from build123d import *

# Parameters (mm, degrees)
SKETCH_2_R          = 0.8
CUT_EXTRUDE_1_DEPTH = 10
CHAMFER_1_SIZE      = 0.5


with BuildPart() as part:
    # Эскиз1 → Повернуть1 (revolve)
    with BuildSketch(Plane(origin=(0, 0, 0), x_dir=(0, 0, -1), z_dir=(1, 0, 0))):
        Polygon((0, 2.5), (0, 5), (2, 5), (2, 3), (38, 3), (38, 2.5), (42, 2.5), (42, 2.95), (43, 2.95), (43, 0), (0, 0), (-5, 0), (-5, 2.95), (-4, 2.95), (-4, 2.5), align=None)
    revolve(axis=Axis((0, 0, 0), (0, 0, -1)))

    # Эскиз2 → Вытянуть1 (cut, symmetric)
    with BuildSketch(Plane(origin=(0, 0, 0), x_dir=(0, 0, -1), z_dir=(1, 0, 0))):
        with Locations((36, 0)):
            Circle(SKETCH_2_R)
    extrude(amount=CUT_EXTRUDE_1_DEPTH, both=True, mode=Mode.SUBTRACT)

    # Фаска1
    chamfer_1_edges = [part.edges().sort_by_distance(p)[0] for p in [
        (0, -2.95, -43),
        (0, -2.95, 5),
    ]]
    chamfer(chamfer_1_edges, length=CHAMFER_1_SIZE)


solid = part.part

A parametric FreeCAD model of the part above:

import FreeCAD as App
import Part
import Sketcher
Q = App.Units.Quantity


def edges_at(feature, points):
    """Names of the edges that pass closest to the given points."""
    edges = feature.Shape.Edges
    near = lambda p: min(range(len(edges)), key=lambda i: edges[i].distToShape(Part.Vertex(*p))[0])
    return sorted({f"Edge{near(p) + 1}" for p in points})


def add_polygon(sketch, points):
    """Adds a closed chain of lines whose ends are joined by coincident constraints."""
    first, n = sketch.GeometryCount, len(points)
    for a, b in zip(points, points[1:] + points[:1]):
        sketch.addGeometry(Part.LineSegment(App.Vector(*a, 0), App.Vector(*b, 0)), False)
    for i in range(n):
        sketch.addConstraint(Sketcher.Constraint("Coincident", first + i, 2, first + (i + 1) % n, 1))

doc = App.newDocument("Part")
body = doc.addObject("PartDesign::Body", "Body")

# Sketch on YZ plane
sketch1 = body.newObject("Sketcher::SketchObject", "Sketch")
sketch1.AttachmentSupport = (doc.getObject("YZ_Plane"), [""])
sketch1.MapMode = "FlatFace"
add_polygon(sketch1, [(5, 0), (2.5, 0), (2.5, 4), (2.95, 4), (2.95, 5), (0, 5), (0, -43), (2.95, -43), (2.95, -42), (2.5, -42), (2.5, -38), (3, -38), (3, -2), (5, -2)])  # lines 0-13
sketch1.addConstraint(Sketcher.Constraint("Horizontal", 0))
sketch1.addConstraint(Sketcher.Constraint("Vertical", 1))
sketch1.addConstraint(Sketcher.Constraint("Horizontal", 2))
sketch1.addConstraint(Sketcher.Constraint("Vertical", 3))
sketch1.addConstraint(Sketcher.Constraint("Horizontal", 4))
sketch1.addConstraint(Sketcher.Constraint("Vertical", 5))
sketch1.addConstraint(Sketcher.Constraint("Horizontal", 6))
sketch1.addConstraint(Sketcher.Constraint("Vertical", 7))
sketch1.addConstraint(Sketcher.Constraint("Horizontal", 8))
sketch1.addConstraint(Sketcher.Constraint("Vertical", 9))
sketch1.addConstraint(Sketcher.Constraint("Horizontal", 10))
sketch1.addConstraint(Sketcher.Constraint("Vertical", 11))
sketch1.addConstraint(Sketcher.Constraint("Horizontal", 12))
sketch1.addConstraint(Sketcher.Constraint("Vertical", 13))
sketch1.addConstraint(Sketcher.Constraint("PointOnObject", 0, 2, -1))
sketch1.addConstraint(Sketcher.Constraint("PointOnObject", 4, 2, -2))
sketch1.addConstraint(Sketcher.Constraint("Vertical", 3, 2, 6, 2))
sketch1.addConstraint(Sketcher.Constraint("Vertical", 1, 2, 8, 2))
sketch1.addConstraint(Sketcher.Constraint("Equal", 3, 7))
sketch1.addConstraint(Sketcher.Constraint("Equal", 1, 9))
sketch1.addConstraint(Sketcher.Constraint("Equal", 12, 13))
sketch1.addConstraint(Sketcher.Constraint("DistanceX", 12, 1, 12, 2, Q("2 mm")))
sketch1.addConstraint(Sketcher.Constraint("DistanceY", 1, 1, 1, 2, Q("4 mm")))
sketch1.addConstraint(Sketcher.Constraint("DistanceY", 3, 1, 3, 2, Q("1 mm")))
sketch1.addConstraint(Sketcher.Constraint("DistanceY", 5, 2, 5, 1, Q("48 mm")))
sketch1.addConstraint(Sketcher.Constraint("DistanceX", 0, 2, 0, 1, Q("2.5 mm")))
sketch1.addConstraint(Sketcher.Constraint("DistanceX", -1, 1, 10, 2, Q("3 mm")))
sketch1.addConstraint(Sketcher.Constraint("DistanceX", 2, 1, 2, 2, Q("0.45 mm")))
revolution = body.newObject("PartDesign::Revolution", "Revolution")
revolution.Profile = sketch1
revolution.ReferenceAxis = (sketch1, ["V_Axis"])
revolution.Angle = 360

# Sketch on YZ plane
sketch2 = body.newObject("Sketcher::SketchObject", "Sketch001")
sketch2.AttachmentSupport = (doc.getObject("YZ_Plane"), [""])
sketch2.MapMode = "FlatFace"
sketch2.addGeometry(Part.Circle(App.Vector(0, -36, 0), App.Vector(0, 0, 1), 0.8), False)
sketch2.addConstraint(Sketcher.Constraint("PointOnObject", 0, 3, -2))
sketch2.addConstraint(Sketcher.Constraint("Diameter", 0, Q("1.6 mm")))
sketch2.addConstraint(Sketcher.Constraint("DistanceY", 0, 3, -1, 1, Q("36 mm")))
pocket1 = body.newObject("PartDesign::Pocket", "Pocket")
pocket1.Profile = sketch2
pocket1.Length = 20
pocket1.Midplane = True
doc.recompute()

chamfer = body.newObject("PartDesign::Chamfer", "Chamfer")
chamfer.Base = (pocket1, edges_at(pocket1, [(0, -2.95, -43), (0, -2.95, 5)]))
chamfer.Size = 0.5

doc.recompute()
